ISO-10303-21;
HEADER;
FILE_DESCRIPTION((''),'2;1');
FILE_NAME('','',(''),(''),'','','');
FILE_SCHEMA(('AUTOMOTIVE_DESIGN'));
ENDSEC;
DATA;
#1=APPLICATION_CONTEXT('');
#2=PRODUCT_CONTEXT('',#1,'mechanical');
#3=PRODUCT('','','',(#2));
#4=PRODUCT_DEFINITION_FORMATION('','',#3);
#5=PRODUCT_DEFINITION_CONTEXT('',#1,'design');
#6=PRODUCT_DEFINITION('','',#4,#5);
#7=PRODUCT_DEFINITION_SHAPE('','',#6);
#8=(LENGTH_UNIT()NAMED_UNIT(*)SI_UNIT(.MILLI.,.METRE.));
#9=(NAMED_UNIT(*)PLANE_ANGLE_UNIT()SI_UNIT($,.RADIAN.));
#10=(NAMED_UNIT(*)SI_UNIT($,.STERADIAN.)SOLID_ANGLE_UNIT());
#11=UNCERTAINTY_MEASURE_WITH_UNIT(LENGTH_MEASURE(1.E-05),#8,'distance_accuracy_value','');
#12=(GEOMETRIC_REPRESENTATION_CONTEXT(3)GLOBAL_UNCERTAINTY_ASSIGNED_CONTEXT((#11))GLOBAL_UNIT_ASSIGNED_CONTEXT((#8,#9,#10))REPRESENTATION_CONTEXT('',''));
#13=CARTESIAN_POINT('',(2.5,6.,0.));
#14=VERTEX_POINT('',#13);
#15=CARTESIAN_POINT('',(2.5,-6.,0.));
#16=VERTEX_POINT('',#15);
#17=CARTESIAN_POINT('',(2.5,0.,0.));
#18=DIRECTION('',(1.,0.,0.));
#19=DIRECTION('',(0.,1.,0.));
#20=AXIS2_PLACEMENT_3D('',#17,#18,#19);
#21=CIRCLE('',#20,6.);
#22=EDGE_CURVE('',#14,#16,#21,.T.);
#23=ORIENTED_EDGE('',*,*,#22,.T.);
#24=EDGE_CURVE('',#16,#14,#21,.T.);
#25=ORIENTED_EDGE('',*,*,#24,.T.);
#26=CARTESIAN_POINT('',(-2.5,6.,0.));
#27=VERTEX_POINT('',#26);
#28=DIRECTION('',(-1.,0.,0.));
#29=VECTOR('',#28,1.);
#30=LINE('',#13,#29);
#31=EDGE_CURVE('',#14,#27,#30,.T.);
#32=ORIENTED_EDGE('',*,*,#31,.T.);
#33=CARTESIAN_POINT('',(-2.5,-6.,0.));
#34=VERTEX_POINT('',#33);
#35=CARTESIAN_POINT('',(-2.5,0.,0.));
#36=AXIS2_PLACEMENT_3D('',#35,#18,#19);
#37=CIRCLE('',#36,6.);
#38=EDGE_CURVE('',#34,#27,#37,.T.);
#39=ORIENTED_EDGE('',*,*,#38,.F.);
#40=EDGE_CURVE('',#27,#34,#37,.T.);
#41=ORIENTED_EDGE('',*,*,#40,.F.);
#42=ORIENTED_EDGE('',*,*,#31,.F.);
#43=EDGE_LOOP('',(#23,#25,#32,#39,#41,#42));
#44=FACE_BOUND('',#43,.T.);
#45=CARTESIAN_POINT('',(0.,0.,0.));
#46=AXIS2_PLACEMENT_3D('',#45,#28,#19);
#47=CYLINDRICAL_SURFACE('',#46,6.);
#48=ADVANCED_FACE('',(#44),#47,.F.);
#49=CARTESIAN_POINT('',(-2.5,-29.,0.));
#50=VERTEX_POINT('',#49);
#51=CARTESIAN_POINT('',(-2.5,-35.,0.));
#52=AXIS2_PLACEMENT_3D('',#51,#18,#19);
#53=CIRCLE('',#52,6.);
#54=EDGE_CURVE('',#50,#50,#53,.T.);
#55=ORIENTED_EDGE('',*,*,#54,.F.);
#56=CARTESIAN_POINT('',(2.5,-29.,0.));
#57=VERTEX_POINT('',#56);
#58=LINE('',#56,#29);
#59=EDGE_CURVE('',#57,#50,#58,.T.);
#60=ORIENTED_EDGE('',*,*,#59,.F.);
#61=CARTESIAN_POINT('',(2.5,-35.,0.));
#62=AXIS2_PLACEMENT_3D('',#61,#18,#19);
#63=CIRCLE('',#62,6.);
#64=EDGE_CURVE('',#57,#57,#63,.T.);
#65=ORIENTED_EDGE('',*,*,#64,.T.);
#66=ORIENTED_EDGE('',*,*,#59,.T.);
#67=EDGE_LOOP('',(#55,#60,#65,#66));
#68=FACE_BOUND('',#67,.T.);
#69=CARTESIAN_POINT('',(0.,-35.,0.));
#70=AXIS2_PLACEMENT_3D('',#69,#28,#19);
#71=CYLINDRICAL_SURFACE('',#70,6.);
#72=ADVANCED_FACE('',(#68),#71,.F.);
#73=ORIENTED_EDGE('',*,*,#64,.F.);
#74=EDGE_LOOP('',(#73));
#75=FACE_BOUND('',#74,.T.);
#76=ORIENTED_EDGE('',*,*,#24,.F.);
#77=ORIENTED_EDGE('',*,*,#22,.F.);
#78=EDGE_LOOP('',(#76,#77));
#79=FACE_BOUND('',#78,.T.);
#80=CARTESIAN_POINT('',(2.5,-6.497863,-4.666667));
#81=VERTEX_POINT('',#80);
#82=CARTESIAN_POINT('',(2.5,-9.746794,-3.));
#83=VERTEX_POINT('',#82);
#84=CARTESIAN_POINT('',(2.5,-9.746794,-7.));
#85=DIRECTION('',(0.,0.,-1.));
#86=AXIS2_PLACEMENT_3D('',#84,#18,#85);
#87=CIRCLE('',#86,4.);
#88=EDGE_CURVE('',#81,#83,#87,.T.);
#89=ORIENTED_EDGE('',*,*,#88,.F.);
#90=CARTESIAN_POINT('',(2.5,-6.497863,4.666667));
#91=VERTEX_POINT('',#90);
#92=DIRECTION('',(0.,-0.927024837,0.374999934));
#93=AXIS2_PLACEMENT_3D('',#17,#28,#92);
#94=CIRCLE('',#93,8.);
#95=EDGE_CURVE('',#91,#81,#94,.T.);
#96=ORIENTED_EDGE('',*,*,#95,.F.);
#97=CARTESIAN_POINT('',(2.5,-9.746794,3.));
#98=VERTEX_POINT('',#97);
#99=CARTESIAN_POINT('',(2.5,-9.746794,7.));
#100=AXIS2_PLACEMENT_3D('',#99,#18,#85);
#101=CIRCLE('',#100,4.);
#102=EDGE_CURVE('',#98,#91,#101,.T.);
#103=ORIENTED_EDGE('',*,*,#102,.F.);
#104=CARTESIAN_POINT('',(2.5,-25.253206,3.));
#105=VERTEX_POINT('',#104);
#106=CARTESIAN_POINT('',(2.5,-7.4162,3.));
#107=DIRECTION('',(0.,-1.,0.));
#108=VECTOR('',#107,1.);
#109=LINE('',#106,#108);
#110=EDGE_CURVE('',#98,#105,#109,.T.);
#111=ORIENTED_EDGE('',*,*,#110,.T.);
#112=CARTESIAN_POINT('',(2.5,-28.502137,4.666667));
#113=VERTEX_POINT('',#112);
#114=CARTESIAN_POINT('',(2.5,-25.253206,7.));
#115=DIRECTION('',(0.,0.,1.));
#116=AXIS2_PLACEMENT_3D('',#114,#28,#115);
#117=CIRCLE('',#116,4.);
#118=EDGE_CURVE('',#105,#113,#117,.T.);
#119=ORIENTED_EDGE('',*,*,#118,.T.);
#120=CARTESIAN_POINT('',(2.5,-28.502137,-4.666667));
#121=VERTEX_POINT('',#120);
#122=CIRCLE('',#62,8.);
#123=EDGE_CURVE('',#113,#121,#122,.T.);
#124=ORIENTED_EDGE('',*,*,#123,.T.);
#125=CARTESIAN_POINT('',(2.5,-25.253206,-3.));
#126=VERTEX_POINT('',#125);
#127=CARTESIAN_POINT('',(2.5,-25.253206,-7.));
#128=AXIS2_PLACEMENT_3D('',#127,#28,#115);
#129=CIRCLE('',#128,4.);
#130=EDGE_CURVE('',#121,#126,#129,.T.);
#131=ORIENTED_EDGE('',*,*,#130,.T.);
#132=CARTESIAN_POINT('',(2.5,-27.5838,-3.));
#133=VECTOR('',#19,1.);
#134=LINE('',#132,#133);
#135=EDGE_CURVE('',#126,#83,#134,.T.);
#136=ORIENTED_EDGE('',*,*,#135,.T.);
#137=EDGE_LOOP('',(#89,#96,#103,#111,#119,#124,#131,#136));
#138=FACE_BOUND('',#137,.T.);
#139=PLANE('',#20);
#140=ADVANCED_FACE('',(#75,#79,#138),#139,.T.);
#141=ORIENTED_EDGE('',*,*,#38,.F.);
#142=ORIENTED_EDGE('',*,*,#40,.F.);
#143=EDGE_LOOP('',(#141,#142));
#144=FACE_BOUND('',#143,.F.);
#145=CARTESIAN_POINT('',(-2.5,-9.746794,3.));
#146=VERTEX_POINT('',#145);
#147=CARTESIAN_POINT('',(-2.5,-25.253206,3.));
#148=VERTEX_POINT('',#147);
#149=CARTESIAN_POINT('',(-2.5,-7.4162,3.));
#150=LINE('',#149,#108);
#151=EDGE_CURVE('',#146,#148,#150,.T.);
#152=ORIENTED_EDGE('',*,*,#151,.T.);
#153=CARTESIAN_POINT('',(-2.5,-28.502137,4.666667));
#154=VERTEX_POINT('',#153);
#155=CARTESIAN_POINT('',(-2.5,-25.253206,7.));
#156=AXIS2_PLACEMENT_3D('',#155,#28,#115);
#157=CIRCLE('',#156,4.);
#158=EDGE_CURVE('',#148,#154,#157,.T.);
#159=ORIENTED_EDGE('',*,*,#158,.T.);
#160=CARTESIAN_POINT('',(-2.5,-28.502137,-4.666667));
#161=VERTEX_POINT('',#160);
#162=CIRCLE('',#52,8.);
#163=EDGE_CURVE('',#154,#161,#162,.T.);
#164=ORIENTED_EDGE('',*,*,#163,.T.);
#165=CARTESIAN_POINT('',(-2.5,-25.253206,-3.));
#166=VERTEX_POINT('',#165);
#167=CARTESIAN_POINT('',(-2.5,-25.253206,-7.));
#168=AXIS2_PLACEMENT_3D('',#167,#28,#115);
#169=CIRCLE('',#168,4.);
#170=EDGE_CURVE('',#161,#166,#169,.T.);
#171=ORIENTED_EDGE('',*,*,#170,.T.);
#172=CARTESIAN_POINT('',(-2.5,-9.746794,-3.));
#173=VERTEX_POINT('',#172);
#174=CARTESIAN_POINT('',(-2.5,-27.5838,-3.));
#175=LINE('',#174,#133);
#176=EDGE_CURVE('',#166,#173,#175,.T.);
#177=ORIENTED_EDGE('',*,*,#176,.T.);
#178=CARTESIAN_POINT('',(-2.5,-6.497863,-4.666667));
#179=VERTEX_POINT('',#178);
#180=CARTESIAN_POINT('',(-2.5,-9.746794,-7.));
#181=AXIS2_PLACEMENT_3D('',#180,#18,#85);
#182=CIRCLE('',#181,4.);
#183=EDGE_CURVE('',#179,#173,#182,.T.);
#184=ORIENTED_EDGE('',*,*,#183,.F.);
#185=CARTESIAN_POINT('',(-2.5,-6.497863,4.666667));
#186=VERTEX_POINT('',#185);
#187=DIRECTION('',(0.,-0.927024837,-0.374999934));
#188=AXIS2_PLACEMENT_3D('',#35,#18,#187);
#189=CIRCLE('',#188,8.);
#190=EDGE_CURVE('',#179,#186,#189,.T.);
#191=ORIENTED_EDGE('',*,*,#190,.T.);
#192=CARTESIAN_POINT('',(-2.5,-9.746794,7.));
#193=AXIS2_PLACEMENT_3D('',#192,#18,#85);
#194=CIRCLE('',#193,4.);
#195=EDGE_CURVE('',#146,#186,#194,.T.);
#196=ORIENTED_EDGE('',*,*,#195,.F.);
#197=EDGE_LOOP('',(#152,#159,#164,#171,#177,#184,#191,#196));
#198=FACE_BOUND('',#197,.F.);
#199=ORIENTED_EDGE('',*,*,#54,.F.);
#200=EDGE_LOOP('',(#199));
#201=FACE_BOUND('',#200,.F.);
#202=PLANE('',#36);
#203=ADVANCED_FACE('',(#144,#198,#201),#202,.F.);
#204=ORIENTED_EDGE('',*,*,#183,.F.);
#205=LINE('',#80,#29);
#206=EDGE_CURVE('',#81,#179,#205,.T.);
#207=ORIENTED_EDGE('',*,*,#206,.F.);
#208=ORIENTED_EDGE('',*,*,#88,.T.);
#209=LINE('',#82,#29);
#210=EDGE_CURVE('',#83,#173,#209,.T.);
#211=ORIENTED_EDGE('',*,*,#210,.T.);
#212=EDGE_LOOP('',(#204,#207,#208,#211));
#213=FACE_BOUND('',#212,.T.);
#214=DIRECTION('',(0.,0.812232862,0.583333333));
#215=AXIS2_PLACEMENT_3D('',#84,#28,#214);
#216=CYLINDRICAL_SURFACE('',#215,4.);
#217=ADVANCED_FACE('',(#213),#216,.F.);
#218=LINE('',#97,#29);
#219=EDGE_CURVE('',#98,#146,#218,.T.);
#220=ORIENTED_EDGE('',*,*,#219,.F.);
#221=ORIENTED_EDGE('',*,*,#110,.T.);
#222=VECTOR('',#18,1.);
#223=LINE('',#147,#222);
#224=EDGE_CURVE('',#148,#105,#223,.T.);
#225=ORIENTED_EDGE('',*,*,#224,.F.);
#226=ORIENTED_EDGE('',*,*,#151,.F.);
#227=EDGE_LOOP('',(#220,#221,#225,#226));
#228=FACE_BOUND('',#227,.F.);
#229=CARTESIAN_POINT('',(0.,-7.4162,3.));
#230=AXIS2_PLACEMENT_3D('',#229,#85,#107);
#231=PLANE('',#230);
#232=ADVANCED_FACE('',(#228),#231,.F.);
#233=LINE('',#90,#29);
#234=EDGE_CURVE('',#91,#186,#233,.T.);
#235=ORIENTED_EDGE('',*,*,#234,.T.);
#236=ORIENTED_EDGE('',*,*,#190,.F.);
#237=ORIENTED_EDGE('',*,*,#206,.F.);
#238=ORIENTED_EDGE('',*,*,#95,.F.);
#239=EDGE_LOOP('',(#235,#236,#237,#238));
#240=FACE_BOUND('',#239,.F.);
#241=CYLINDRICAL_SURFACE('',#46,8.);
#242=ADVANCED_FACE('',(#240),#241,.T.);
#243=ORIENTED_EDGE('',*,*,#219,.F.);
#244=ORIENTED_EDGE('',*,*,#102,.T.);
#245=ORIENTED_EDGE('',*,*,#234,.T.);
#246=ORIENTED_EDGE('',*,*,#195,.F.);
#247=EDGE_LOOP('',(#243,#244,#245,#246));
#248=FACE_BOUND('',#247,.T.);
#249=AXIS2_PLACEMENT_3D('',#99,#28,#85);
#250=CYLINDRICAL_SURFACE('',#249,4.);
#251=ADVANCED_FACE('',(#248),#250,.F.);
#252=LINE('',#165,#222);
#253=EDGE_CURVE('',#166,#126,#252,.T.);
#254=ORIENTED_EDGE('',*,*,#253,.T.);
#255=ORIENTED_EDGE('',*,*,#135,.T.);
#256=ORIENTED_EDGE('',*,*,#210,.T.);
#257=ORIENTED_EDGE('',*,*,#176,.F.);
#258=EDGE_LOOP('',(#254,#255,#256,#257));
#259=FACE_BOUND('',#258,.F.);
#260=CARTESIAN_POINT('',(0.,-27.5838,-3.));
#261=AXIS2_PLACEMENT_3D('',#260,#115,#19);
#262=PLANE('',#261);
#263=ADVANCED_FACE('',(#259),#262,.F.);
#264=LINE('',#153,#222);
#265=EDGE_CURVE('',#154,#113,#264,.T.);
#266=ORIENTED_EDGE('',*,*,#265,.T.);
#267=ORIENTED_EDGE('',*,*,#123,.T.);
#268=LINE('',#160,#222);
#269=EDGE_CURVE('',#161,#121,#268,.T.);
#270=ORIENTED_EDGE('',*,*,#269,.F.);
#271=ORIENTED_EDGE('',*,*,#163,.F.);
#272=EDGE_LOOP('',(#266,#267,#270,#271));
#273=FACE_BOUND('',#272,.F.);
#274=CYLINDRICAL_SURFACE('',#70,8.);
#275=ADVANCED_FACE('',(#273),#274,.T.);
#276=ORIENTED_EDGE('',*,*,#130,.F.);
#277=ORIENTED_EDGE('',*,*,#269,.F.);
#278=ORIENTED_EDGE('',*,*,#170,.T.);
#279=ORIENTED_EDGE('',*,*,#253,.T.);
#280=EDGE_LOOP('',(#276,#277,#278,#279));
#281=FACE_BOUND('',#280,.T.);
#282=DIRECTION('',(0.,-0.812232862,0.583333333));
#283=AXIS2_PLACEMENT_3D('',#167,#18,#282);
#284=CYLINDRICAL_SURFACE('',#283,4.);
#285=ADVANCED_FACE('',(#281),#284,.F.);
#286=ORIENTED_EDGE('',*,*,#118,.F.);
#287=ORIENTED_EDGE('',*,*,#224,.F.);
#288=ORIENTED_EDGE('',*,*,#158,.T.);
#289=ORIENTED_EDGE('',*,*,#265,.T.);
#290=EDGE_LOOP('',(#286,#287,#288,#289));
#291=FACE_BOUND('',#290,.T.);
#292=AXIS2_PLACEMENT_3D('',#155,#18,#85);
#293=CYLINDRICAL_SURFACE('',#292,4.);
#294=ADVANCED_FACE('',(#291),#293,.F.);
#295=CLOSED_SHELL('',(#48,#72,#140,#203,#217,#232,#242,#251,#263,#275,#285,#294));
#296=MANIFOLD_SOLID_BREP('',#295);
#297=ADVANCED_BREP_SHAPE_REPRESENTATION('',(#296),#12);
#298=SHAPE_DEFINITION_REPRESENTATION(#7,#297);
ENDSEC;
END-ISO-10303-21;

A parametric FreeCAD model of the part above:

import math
import FreeCAD as App
import Part
import Sketcher
Q = App.Units.Quantity


def edges_at(feature, points):
    """Names of the edges that pass closest to the given points."""
    edges = feature.Shape.Edges
    near = lambda p: min(range(len(edges)), key=lambda i: edges[i].distToShape(Part.Vertex(*p))[0])
    return sorted({f"Edge{near(p) + 1}" for p in points})

doc = App.newDocument("Part")
body = doc.addObject("PartDesign::Body", "Body")

# Sketch on YZ plane
sketch1 = body.newObject("Sketcher::SketchObject", "Sketch")
sketch1.AttachmentSupport = (doc.getObject("YZ_Plane"), [""])
sketch1.MapMode = "FlatFace"
sketch1.addGeometry([
    Part.LineSegment(App.Vector(-7, 3, 0), App.Vector(-28, 3, 0)),  # 0
    Part.ArcOfCircle(Part.Circle(App.Vector(-35, 0, 0), App.Vector(0, 0, 1), 8), math.radians(22), math.radians(338)),  # 1
    Part.LineSegment(App.Vector(-28, -3, 0), App.Vector(-7, -3, 0)),  # 2
    Part.ArcOfCircle(Part.Circle(App.Vector(0, 0, 0), App.Vector(0, 0, 1), 8), math.radians(-158), math.radians(158)),  # 3
    Part.Circle(App.Vector(-35, 0, 0), App.Vector(0, 0, 1), 6),  # 4
    Part.Circle(App.Vector(0, 0, 0), App.Vector(0, 0, 1), 6),  # 5
], False)
sketch1.addConstraint([
    Sketcher.Constraint("Coincident", 0, 2, 1, 1),
    Sketcher.Constraint("Coincident", 1, 2, 2, 1),
    Sketcher.Constraint("Coincident", 2, 2, 3, 1),
    Sketcher.Constraint("Coincident", 3, 2, 0, 1),
    Sketcher.Constraint("Horizontal", 0),
    Sketcher.Constraint("Horizontal", 2),
    Sketcher.Constraint("Coincident", 3, 3, -1, 1),
    Sketcher.Constraint("Coincident", 5, 3, -1, 1),
    Sketcher.Constraint("Coincident", 4, 3, 1, 3),
    Sketcher.Constraint("Equal", 1, 3),
    Sketcher.Constraint("Equal", 4, 5),
    Sketcher.Constraint("Symmetric", 0, 2, 1, 2, -1),
    Sketcher.Constraint("Diameter", 4, Q("12 mm")),
    Sketcher.Constraint("Radius", 1, Q("8 mm")),
    Sketcher.Constraint("DistanceX", 1, 3, -1, 1, Q("35 mm")),
    Sketcher.Constraint("DistanceY", -1, 1, 0, 2, Q("3 mm")),
])
pad1 = body.newObject("PartDesign::Pad", "Pad")
pad1.Profile = sketch1
pad1.Length = 5
pad1.Midplane = True
doc.recompute()

fillet = body.newObject("PartDesign::Fillet", "Fillet")
fillet.Base = (pad1, edges_at(pad1, [
    (0, -7.416, 3),
    (0, -27.584, 3),
    (0, -7.416, -3),
    (0, -27.584, -3),
]))
fillet.Radius = 4

doc.recompute()
